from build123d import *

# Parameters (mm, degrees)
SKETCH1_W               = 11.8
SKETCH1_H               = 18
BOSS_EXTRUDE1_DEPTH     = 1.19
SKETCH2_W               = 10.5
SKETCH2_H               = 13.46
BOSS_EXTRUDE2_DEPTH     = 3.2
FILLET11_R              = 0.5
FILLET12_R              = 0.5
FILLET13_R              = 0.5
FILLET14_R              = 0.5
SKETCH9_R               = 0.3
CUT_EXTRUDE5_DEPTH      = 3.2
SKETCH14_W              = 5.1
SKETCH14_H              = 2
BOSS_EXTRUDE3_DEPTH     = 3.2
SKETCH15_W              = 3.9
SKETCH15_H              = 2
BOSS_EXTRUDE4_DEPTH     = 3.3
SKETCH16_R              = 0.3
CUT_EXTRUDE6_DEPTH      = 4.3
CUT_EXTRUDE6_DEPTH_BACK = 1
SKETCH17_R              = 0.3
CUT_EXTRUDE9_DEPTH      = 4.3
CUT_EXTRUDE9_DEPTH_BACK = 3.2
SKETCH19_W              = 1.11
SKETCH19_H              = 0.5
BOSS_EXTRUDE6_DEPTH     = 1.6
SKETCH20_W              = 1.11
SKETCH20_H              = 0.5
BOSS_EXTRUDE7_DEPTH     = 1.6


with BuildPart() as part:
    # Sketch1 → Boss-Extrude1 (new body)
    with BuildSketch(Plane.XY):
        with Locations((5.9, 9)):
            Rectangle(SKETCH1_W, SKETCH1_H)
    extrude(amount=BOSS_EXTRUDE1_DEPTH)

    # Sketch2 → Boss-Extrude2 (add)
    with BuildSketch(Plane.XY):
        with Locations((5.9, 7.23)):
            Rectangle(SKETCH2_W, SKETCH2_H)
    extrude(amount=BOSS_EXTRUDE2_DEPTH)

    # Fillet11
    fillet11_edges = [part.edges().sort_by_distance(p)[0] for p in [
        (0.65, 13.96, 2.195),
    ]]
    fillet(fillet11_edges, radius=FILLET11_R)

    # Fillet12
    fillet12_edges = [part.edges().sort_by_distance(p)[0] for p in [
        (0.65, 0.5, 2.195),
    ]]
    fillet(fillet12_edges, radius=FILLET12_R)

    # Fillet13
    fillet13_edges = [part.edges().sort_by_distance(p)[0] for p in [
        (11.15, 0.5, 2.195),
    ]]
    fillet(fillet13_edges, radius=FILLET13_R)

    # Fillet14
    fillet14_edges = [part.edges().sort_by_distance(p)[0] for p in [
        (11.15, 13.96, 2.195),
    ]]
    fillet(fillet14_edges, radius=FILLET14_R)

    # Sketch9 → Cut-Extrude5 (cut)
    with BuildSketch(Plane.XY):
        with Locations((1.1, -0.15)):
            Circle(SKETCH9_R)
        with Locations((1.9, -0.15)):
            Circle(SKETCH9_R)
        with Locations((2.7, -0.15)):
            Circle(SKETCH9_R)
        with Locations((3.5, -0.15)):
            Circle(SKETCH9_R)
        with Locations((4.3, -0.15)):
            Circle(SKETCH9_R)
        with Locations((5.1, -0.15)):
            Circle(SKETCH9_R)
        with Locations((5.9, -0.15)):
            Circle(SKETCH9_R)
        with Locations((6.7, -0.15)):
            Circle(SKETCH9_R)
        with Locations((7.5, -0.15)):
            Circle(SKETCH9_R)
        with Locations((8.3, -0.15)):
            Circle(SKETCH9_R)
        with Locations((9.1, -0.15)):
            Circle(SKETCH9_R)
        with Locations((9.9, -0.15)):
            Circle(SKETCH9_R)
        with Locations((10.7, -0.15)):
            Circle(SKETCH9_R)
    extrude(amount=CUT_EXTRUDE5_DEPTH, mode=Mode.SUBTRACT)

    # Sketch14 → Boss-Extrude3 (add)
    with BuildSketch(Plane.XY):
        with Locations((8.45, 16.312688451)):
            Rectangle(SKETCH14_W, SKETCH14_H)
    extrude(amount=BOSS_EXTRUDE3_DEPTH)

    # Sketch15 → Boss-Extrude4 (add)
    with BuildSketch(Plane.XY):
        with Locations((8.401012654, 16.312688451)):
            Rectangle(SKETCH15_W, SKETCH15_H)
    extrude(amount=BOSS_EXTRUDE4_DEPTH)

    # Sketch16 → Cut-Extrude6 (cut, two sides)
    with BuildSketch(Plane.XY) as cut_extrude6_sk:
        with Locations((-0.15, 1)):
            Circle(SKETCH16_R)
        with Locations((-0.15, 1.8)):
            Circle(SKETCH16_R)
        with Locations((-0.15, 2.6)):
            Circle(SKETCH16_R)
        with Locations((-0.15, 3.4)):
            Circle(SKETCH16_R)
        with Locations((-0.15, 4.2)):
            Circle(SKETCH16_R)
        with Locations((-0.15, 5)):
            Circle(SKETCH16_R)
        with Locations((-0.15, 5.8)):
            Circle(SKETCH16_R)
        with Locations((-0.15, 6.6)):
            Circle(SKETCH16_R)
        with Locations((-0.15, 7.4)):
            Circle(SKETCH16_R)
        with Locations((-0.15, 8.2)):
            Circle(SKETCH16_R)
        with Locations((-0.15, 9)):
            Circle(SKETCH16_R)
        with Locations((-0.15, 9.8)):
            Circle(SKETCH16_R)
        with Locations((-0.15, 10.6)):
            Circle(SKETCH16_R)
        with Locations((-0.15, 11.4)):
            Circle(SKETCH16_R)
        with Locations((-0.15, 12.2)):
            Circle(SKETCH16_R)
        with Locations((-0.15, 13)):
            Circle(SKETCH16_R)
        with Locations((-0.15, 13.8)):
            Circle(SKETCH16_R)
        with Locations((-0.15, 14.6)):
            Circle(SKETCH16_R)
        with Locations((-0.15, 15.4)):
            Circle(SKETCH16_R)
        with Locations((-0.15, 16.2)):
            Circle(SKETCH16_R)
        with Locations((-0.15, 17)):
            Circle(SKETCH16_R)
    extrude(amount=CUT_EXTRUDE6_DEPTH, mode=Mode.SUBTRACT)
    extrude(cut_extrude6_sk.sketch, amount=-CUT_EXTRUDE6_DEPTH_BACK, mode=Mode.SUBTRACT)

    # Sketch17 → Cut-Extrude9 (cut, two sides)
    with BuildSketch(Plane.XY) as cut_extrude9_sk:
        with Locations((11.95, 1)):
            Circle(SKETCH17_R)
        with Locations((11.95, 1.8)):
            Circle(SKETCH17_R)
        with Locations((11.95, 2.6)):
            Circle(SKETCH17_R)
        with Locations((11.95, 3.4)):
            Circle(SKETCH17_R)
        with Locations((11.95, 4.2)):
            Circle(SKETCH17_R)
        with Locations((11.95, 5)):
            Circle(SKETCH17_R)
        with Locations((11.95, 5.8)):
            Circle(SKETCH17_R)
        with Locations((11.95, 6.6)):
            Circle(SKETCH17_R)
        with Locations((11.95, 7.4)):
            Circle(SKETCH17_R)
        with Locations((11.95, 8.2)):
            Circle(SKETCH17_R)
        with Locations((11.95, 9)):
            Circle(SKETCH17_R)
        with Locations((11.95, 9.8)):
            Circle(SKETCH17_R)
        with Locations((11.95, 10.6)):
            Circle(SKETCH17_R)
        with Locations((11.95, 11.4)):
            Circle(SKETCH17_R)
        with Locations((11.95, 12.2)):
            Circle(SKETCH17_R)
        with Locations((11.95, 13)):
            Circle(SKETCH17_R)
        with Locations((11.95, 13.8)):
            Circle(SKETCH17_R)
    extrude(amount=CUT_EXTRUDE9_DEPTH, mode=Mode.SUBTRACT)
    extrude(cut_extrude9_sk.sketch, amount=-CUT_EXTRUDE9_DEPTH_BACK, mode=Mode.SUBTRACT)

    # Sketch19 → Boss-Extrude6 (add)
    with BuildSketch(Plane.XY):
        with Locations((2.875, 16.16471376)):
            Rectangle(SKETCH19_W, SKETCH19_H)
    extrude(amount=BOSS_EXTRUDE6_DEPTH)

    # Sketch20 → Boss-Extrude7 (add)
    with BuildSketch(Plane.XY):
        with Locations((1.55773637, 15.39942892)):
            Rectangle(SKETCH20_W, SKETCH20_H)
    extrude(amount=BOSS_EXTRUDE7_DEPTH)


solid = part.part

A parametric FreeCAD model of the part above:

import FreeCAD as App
import Part
import Sketcher
from FreeCAD import Vector


def edges_at(feature, points):
    """Names of the edges that pass closest to the given points."""
    edges = feature.Shape.Edges
    near = lambda p: min(range(len(edges)), key=lambda i: edges[i].distToShape(Part.Vertex(*p))[0])
    return sorted({f"Edge{near(p) + 1}" for p in points})

doc = App.newDocument("Part")
body = doc.addObject("PartDesign::Body", "Body")

# Sketch on XY plane
sketch1 = doc.addObject("Sketcher::SketchObject", "Sketch")
body.addObject(sketch1)
sketch1.AttachmentSupport = (doc.XY_Plane, [""])
sketch1.MapMode = "FlatFace"
sketch1.addGeometry([
    Part.LineSegment(Vector(0, 18, 0), Vector(0, 0, 0)),
    Part.LineSegment(Vector(0, 0, 0), Vector(11.8, 0, 0)),
    Part.LineSegment(Vector(11.8, 0, 0), Vector(11.8, 18, 0)),
    Part.LineSegment(Vector(11.8, 18, 0), Vector(0, 18, 0)),
], False)
sketch1.addConstraint([
    Sketcher.Constraint("Coincident", 0, 2, 1, 1),
    Sketcher.Constraint("Coincident", 1, 2, 2, 1),
    Sketcher.Constraint("Coincident", 2, 2, 3, 1),
    Sketcher.Constraint("Coincident", 3, 2, 0, 1),
    Sketcher.Constraint("Vertical", 0),
    Sketcher.Constraint("Horizontal", 1),
    Sketcher.Constraint("Vertical", 2),
    Sketcher.Constraint("Horizontal", 3),
    Sketcher.Constraint("Coincident", 0, 2, -1, 1),
    Sketcher.Constraint("DistanceY", 0, 2, 0, 1, 18.0),
    Sketcher.Constraint("DistanceX", 1, 1, 1, 2, 11.8),
])
pad1 = doc.addObject("PartDesign::Pad", "Pad")
body.addObject(pad1)
pad1.Profile = sketch1
pad1.Length = 1.19

# Sketch on XY plane
sketch2 = doc.addObject("Sketcher::SketchObject", "Sketch001")
body.addObject(sketch2)
sketch2.AttachmentSupport = (doc.XY_Plane, [""])
sketch2.MapMode = "FlatFace"
sketch2.addGeometry([
    Part.LineSegment(Vector(0.65, 13.96, 0), Vector(0.65, 0.5, 0)),
    Part.LineSegment(Vector(0.65, 0.5, 0), Vector(11.15, 0.5, 0)),
    Part.LineSegment(Vector(11.15, 0.5, 0), Vector(11.15, 13.96, 0)),
    Part.LineSegment(Vector(11.15, 13.96, 0), Vector(0.65, 13.96, 0)),
], False)
sketch2.addConstraint([
    Sketcher.Constraint("Coincident", 0, 2, 1, 1),
    Sketcher.Constraint("Coincident", 1, 2, 2, 1),
    Sketcher.Constraint("Coincident", 2, 2, 3, 1),
    Sketcher.Constraint("Coincident", 3, 2, 0, 1),
    Sketcher.Constraint("Vertical", 0),
    Sketcher.Constraint("Horizontal", 1),
    Sketcher.Constraint("Vertical", 2),
    Sketcher.Constraint("Horizontal", 3),
    Sketcher.Constraint("DistanceX", 1, 1, 1, 2, 10.5),
    Sketcher.Constraint("DistanceY", 0, 2, 0, 1, 13.46),
    Sketcher.Constraint("DistanceY", -1, 1, 0, 2, 0.5),
    Sketcher.Constraint("DistanceX", -1, 1, 0, 2, 0.65),
])
pad2 = doc.addObject("PartDesign::Pad", "Pad001")
body.addObject(pad2)
pad2.Profile = sketch2
pad2.Length = 3.2
doc.recompute()

fillet = doc.addObject("PartDesign::Fillet", "Fillet")
body.addObject(fillet)
fillet.Base = (pad2, edges_at(pad2, [(0.65, 13.96, 2.195)]))
fillet.Radius = 0.5
doc.recompute()

fillet2 = doc.addObject("PartDesign::Fillet", "Fillet001")
body.addObject(fillet2)
fillet2.Base = (fillet, edges_at(fillet, [(0.65, 0.5, 2.195)]))
fillet2.Radius = 0.5
doc.recompute()

fillet3 = doc.addObject("PartDesign::Fillet", "Fillet002")
body.addObject(fillet3)
fillet3.Base = (fillet2, edges_at(fillet2, [(11.15, 0.5, 2.195)]))
fillet3.Radius = 0.5
doc.recompute()

fillet4 = doc.addObject("PartDesign::Fillet", "Fillet003")
body.addObject(fillet4)
fillet4.Base = (fillet3, edges_at(fillet3, [(11.15, 13.96, 2.195)]))
fillet4.Radius = 0.5

# Sketch on XY plane
sketch3 = doc.addObject("Sketcher::SketchObject", "Sketch002")
body.addObject(sketch3)
sketch3.AttachmentSupport = (doc.XY_Plane, [""])
sketch3.MapMode = "FlatFace"
sketch3.addGeometry([
    Part.Circle(Vector(1.1, -0.15, 0), Vector(0, 0, 1), 0.3),  # 0
    Part.Circle(Vector(1.9, -0.15, 0), Vector(0, 0, 1), 0.3),  # 1
    Part.Circle(Vector(2.7, -0.15, 0), Vector(0, 0, 1), 0.3),  # 2
    Part.Circle(Vector(3.5, -0.15, 0), Vector(0, 0, 1), 0.3),  # 3
    Part.Circle(Vector(4.3, -0.15, 0), Vector(0, 0, 1), 0.3),  # 4
    Part.Circle(Vector(5.1, -0.15, 0), Vector(0, 0, 1), 0.3),  # 5
    Part.Circle(Vector(5.9, -0.15, 0), Vector(0, 0, 1), 0.3),  # 6
    Part.Circle(Vector(6.7, -0.15, 0), Vector(0, 0, 1), 0.3),  # 7
    Part.Circle(Vector(7.5, -0.15, 0), Vector(0, 0, 1), 0.3),  # 8
    Part.Circle(Vector(8.3, -0.15, 0), Vector(0, 0, 1), 0.3),  # 9
    Part.Circle(Vector(9.1, -0.15, 0), Vector(0, 0, 1), 0.3),  # 10
    Part.Circle(Vector(9.9, -0.15, 0), Vector(0, 0, 1), 0.3),  # 11
    Part.Circle(Vector(10.7, -0.15, 0), Vector(0, 0, 1), 0.3),  # 12
], False)
sketch3.addConstraint([
    Sketcher.Constraint("Equal", 0, 1),
    Sketcher.Constraint("Equal", 1, 2),
    Sketcher.Constraint("Equal", 2, 3),
    Sketcher.Constraint("Equal", 3, 4),
    Sketcher.Constraint("Equal", 4, 5),
    Sketcher.Constraint("Equal", 5, 6),
    Sketcher.Constraint("Equal", 6, 7),
    Sketcher.Constraint("Equal", 7, 8),
    Sketcher.Constraint("Equal", 8, 9),
    Sketcher.Constraint("Equal", 9, 10),
    Sketcher.Constraint("Equal", 10, 11),
    Sketcher.Constraint("Equal", 11, 12),
    Sketcher.Constraint("Horizontal", 0, 3, 1, 3),
    Sketcher.Constraint("Horizontal", 1, 3, 2, 3),
    Sketcher.Constraint("Horizontal", 2, 3, 3, 3),
    Sketcher.Constraint("Horizontal", 3, 3, 4, 3),
    Sketcher.Constraint("Horizontal", 4, 3, 5, 3),
    Sketcher.Constraint("Horizontal", 5, 3, 6, 3),
    Sketcher.Constraint("Horizontal", 6, 3, 7, 3),
    Sketcher.Constraint("Horizontal", 7, 3, 8, 3),
    Sketcher.Constraint("Horizontal", 8, 3, 9, 3),
    Sketcher.Constraint("Horizontal", 9, 3, 10, 3),
    Sketcher.Constraint("Horizontal", 10, 3, 11, 3),
    Sketcher.Constraint("Horizontal", 11, 3, 12, 3),
    Sketcher.Constraint("Diameter", 0, 0.6),
    Sketcher.Constraint("DistanceX", 0, 3, 5, 3, 4.0),
    Sketcher.Constraint("DistanceX", 1, 3, 6, 3, 4.0),
    Sketcher.Constraint("DistanceX", 2, 3, 7, 3, 4.0),
    Sketcher.Constraint("DistanceX", 3, 3, 8, 3, 4.0),
    Sketcher.Constraint("DistanceX", 4, 3, 9, 3, 4.0),
    Sketcher.Constraint("DistanceX", 5, 3, 10, 3, 4.0),
    Sketcher.Constraint("DistanceX", 6, 3, 11, 3, 4.0),
    Sketcher.Constraint("DistanceX", 7, 3, 12, 3, 4.0),
    Sketcher.Constraint("DistanceX", -1, 1, 0, 3, 1.1),
    Sketcher.Constraint("DistanceX", -1, 1, 1, 3, 1.9),
    Sketcher.Constraint("DistanceX", -1, 1, 2, 3, 2.7),
    Sketcher.Constraint("DistanceX", -1, 1, 3, 3, 3.5),
    Sketcher.Constraint("DistanceX", -1, 1, 4, 3, 4.3),
    Sketcher.Constraint("DistanceY", 0, 3, -1, 1, 0.15),
])
pocket1 = doc.addObject("PartDesign::Pocket", "Pocket")
body.addObject(pocket1)
pocket1.Profile = sketch3
pocket1.Length = 3.2
pocket1.Reversed = True

# Sketch on XY plane
sketch4 = doc.addObject("Sketcher::SketchObject", "Sketch003")
body.addObject(sketch4)
sketch4.AttachmentSupport = (doc.XY_Plane, [""])
sketch4.MapMode = "FlatFace"
sketch4.addGeometry([
    Part.LineSegment(Vector(5.9, 17.312688, 0), Vector(5.9, 15.312688, 0)),
    Part.LineSegment(Vector(5.9, 15.312688, 0), Vector(11, 15.312688, 0)),
    Part.LineSegment(Vector(11, 15.312688, 0), Vector(11, 17.312688, 0)),
    Part.LineSegment(Vector(11, 17.312688, 0), Vector(5.9, 17.312688, 0)),
], False)
sketch4.addConstraint([
    Sketcher.Constraint("Coincident", 0, 2, 1, 1),
    Sketcher.Constraint("Coincident", 1, 2, 2, 1),
    Sketcher.Constraint("Coincident", 2, 2, 3, 1),
    Sketcher.Constraint("Coincident", 3, 2, 0, 1),
    Sketcher.Constraint("Vertical", 0),
    Sketcher.Constraint("Horizontal", 1),
    Sketcher.Constraint("Vertical", 2),
    Sketcher.Constraint("Horizontal", 3),
    Sketcher.Constraint("DistanceY", 0, 2, 0, 1, 2.0),
    Sketcher.Constraint("DistanceX", 1, 1, 1, 2, 5.1),
    Sketcher.Constraint("DistanceX", -1, 1, 1, 2, 11.0),
    Sketcher.Constraint("DistanceY", -1, 1, 0, 2, 15.312688),
])
pad3 = doc.addObject("PartDesign::Pad", "Pad002")
body.addObject(pad3)
pad3.Profile = sketch4
pad3.Length = 3.2

# Sketch on XY plane
sketch5 = doc.addObject("Sketcher::SketchObject", "Sketch004")
body.addObject(sketch5)
sketch5.AttachmentSupport = (doc.XY_Plane, [""])
sketch5.MapMode = "FlatFace"
sketch5.addGeometry([
    Part.LineSegment(Vector(6.451013, 17.312688, 0), Vector(6.451013, 15.312688, 0)),
    Part.LineSegment(Vector(6.451013, 15.312688, 0), Vector(10.351013, 15.312688, 0)),
    Part.LineSegment(Vector(10.351013, 15.312688, 0), Vector(10.351013, 17.312688, 0)),
    Part.LineSegment(Vector(10.351013, 17.312688, 0), Vector(6.451013, 17.312688, 0)),
], False)
sketch5.addConstraint([
    Sketcher.Constraint("Coincident", 0, 2, 1, 1),
    Sketcher.Constraint("Coincident", 1, 2, 2, 1),
    Sketcher.Constraint("Coincident", 2, 2, 3, 1),
    Sketcher.Constraint("Coincident", 3, 2, 0, 1),
    Sketcher.Constraint("Vertical", 0),
    Sketcher.Constraint("Horizontal", 1),
    Sketcher.Constraint("Vertical", 2),
    Sketcher.Constraint("Horizontal", 3),
    Sketcher.Constraint("DistanceY", 0, 2, 0, 1, 2.0),
    Sketcher.Constraint("DistanceX", 1, 1, 1, 2, 3.9),
    Sketcher.Constraint("DistanceY", -1, 1, 0, 2, 15.312688),
    Sketcher.Constraint("DistanceX", -1, 1, 0, 2, 6.451013),
])
pad4 = doc.addObject("PartDesign::Pad", "Pad003")
body.addObject(pad4)
pad4.Profile = sketch5
pad4.Length = 3.3

# Sketch on XY plane
sketch6 = doc.addObject("Sketcher::SketchObject", "Sketch005")
body.addObject(sketch6)
sketch6.AttachmentSupport = (doc.XY_Plane, [""])
sketch6.MapMode = "FlatFace"
sketch6.addGeometry([
    Part.Circle(Vector(-0.15, 1, 0), Vector(0, 0, 1), 0.3),  # 0
    Part.Circle(Vector(-0.15, 1.8, 0), Vector(0, 0, 1), 0.3),  # 1
    Part.Circle(Vector(-0.15, 2.6, 0), Vector(0, 0, 1), 0.3),  # 2
    Part.Circle(Vector(-0.15, 3.4, 0), Vector(0, 0, 1), 0.3),  # 3
    Part.Circle(Vector(-0.15, 4.2, 0), Vector(0, 0, 1), 0.3),  # 4
    Part.Circle(Vector(-0.15, 5, 0), Vector(0, 0, 1), 0.3),  # 5
    Part.Circle(Vector(-0.15, 5.8, 0), Vector(0, 0, 1), 0.3),  # 6
    Part.Circle(Vector(-0.15, 6.6, 0), Vector(0, 0, 1), 0.3),  # 7
    Part.Circle(Vector(-0.15, 7.4, 0), Vector(0, 0, 1), 0.3),  # 8
    Part.Circle(Vector(-0.15, 8.2, 0), Vector(0, 0, 1), 0.3),  # 9
    Part.Circle(Vector(-0.15, 9, 0), Vector(0, 0, 1), 0.3),  # 10
    Part.Circle(Vector(-0.15, 9.8, 0), Vector(0, 0, 1), 0.3),  # 11
    Part.Circle(Vector(-0.15, 10.6, 0), Vector(0, 0, 1), 0.3),  # 12
    Part.Circle(Vector(-0.15, 11.4, 0), Vector(0, 0, 1), 0.3),  # 13
    Part.Circle(Vector(-0.15, 12.2, 0), Vector(0, 0, 1), 0.3),  # 14
    Part.Circle(Vector(-0.15, 13, 0), Vector(0, 0, 1), 0.3),  # 15
    Part.Circle(Vector(-0.15, 13.8, 0), Vector(0, 0, 1), 0.3),  # 16
    Part.Circle(Vector(-0.15, 14.6, 0), Vector(0, 0, 1), 0.3),  # 17
    Part.Circle(Vector(-0.15, 15.4, 0), Vector(0, 0, 1), 0.3),  # 18
    Part.Circle(Vector(-0.15, 16.2, 0), Vector(0, 0, 1), 0.3),  # 19
    Part.Circle(Vector(-0.15, 17, 0), Vector(0, 0, 1), 0.3),  # 20
], False)
sketch6.addConstraint([
    Sketcher.Constraint("Equal", 0, 1),
    Sketcher.Constraint("Equal", 1, 2),
    Sketcher.Constraint("Equal", 2, 3),
    Sketcher.Constraint("Equal", 3, 4),
    Sketcher.Constraint("Equal", 4, 5),
    Sketcher.Constraint("Equal", 5, 6),
    Sketcher.Constraint("Equal", 6, 7),
    Sketcher.Constraint("Equal", 7, 8),
    Sketcher.Constraint("Equal", 8, 9),
    Sketcher.Constraint("Equal", 9, 10),
    Sketcher.Constraint("Equal", 10, 11),
    Sketcher.Constraint("Equal", 11, 12),
    Sketcher.Constraint("Equal", 12, 13),
    Sketcher.Constraint("Equal", 13, 14),
    Sketcher.Constraint("Equal", 14, 15),
    Sketcher.Constraint("Equal", 15, 16),
    Sketcher.Constraint("Equal", 16, 17),
    Sketcher.Constraint("Equal", 17, 18),
    Sketcher.Constraint("Equal", 18, 19),
    Sketcher.Constraint("Equal", 19, 20),
    Sketcher.Constraint("Vertical", 0, 3, 1, 3),
    Sketcher.Constraint("Vertical", 1, 3, 2, 3),
    Sketcher.Constraint("Vertical", 2, 3, 3, 3),
    Sketcher.Constraint("Vertical", 3, 3, 4, 3),
    Sketcher.Constraint("Vertical", 4, 3, 5, 3),
    Sketcher.Constraint("Vertical", 5, 3, 6, 3),
    Sketcher.Constraint("Vertical", 6, 3, 7, 3),
    Sketcher.Constraint("Vertical", 7, 3, 8, 3),
    Sketcher.Constraint("Vertical", 8, 3, 9, 3),
    Sketcher.Constraint("Vertical", 9, 3, 10, 3),
    Sketcher.Constraint("Vertical", 10, 3, 11, 3),
    Sketcher.Constraint("Vertical", 11, 3, 12, 3),
    Sketcher.Constraint("Vertical", 12, 3, 13, 3),
    Sketcher.Constraint("Vertical", 13, 3, 14, 3),
    Sketcher.Constraint("Vertical", 14, 3, 15, 3),
    Sketcher.Constraint("Vertical", 15, 3, 16, 3),
    Sketcher.Constraint("Vertical", 16, 3, 17, 3),
    Sketcher.Constraint("Vertical", 17, 3, 18, 3),
    Sketcher.Constraint("Vertical", 18, 3, 19, 3),
    Sketcher.Constraint("Vertical", 19, 3, 20, 3),
    Sketcher.Constraint("Diameter", 0, 0.6),
    Sketcher.Constraint("DistanceY", -1, 1, 0, 3, 1.0),
    Sketcher.Constraint("DistanceY", -1, 1, 5, 3, 5.0),
    Sketcher.Constraint("DistanceY", -1, 1, 10, 3, 9.0),
    Sketcher.Constraint("DistanceY", -1, 1, 15, 3, 13.0),
    Sketcher.Constraint("DistanceY", -1, 1, 20, 3, 17.0),
    Sketcher.Constraint("DistanceY", 1, 3, 6, 3, 4.0),
    Sketcher.Constraint("DistanceY", 2, 3, 7, 3, 4.0),
    Sketcher.Constraint("DistanceY", 3, 3, 8, 3, 4.0),
    Sketcher.Constraint("DistanceY", 4, 3, 9, 3, 4.0),
    Sketcher.Constraint("DistanceY", 6, 3, 11, 3, 4.0),
    Sketcher.Constraint("DistanceY", 7, 3, 12, 3, 4.0),
    Sketcher.Constraint("DistanceY", 8, 3, 13, 3, 4.0),
    Sketcher.Constraint("DistanceY", 9, 3, 14, 3, 4.0),
    Sketcher.Constraint("DistanceY", 11, 3, 16, 3, 4.0),
    Sketcher.Constraint("DistanceY", 12, 3, 17, 3, 4.0),
    Sketcher.Constraint("DistanceY", 13, 3, 18, 3, 4.0),
    Sketcher.Constraint("DistanceY", 14, 3, 19, 3, 4.0),
    Sketcher.Constraint("DistanceY", -1, 1, 1, 3, 1.8),
    Sketcher.Constraint("DistanceY", -1, 1, 2, 3, 2.6),
    Sketcher.Constraint("DistanceY", -1, 1, 3, 3, 3.4),
    Sketcher.Constraint("DistanceY", -1, 1, 4, 3, 4.2),
    Sketcher.Constraint("DistanceX", 0, 3, -1, 1, 0.15),
])
pocket2 = doc.addObject("PartDesign::Pocket", "Pocket001")
body.addObject(pocket2)
pocket2.Profile = sketch6
pocket2.Type = "ThroughAll"
pocket2.Midplane = True

# Sketch on XY plane
sketch7 = doc.addObject("Sketcher::SketchObject", "Sketch006")
body.addObject(sketch7)
sketch7.AttachmentSupport = (doc.XY_Plane, [""])
sketch7.MapMode = "FlatFace"
sketch7.addGeometry([
    Part.Circle(Vector(11.95, 1, 0), Vector(0, 0, 1), 0.3),  # 0
    Part.Circle(Vector(11.95, 1.8, 0), Vector(0, 0, 1), 0.3),  # 1
    Part.Circle(Vector(11.95, 2.6, 0), Vector(0, 0, 1), 0.3),  # 2
    Part.Circle(Vector(11.95, 3.4, 0), Vector(0, 0, 1), 0.3),  # 3
    Part.Circle(Vector(11.95, 4.2, 0), Vector(0, 0, 1), 0.3),  # 4
    Part.Circle(Vector(11.95, 5, 0), Vector(0, 0, 1), 0.3),  # 5
    Part.Circle(Vector(11.95, 5.8, 0), Vector(0, 0, 1), 0.3),  # 6
    Part.Circle(Vector(11.95, 6.6, 0), Vector(0, 0, 1), 0.3),  # 7
    Part.Circle(Vector(11.95, 7.4, 0), Vector(0, 0, 1), 0.3),  # 8
    Part.Circle(Vector(11.95, 8.2, 0), Vector(0, 0, 1), 0.3),  # 9
    Part.Circle(Vector(11.95, 9, 0), Vector(0, 0, 1), 0.3),  # 10
    Part.Circle(Vector(11.95, 9.8, 0), Vector(0, 0, 1), 0.3),  # 11
    Part.Circle(Vector(11.95, 10.6, 0), Vector(0, 0, 1), 0.3),  # 12
    Part.Circle(Vector(11.95, 11.4, 0), Vector(0, 0, 1), 0.3),  # 13
    Part.Circle(Vector(11.95, 12.2, 0), Vector(0, 0, 1), 0.3),  # 14
    Part.Circle(Vector(11.95, 13, 0), Vector(0, 0, 1), 0.3),  # 15
    Part.Circle(Vector(11.95, 13.8, 0), Vector(0, 0, 1), 0.3),  # 16
], False)
sketch7.addConstraint([
    Sketcher.Constraint("Equal", 0, 1),
    Sketcher.Constraint("Equal", 1, 2),
    Sketcher.Constraint("Equal", 2, 3),
    Sketcher.Constraint("Equal", 3, 4),
    Sketcher.Constraint("Equal", 4, 5),
    Sketcher.Constraint("Equal", 5, 6),
    Sketcher.Constraint("Equal", 6, 7),
    Sketcher.Constraint("Equal", 7, 8),
    Sketcher.Constraint("Equal", 8, 9),
    Sketcher.Constraint("Equal", 9, 10),
    Sketcher.Constraint("Equal", 10, 11),
    Sketcher.Constraint("Equal", 11, 12),
    Sketcher.Constraint("Equal", 12, 13),
    Sketcher.Constraint("Equal", 13, 14),
    Sketcher.Constraint("Equal", 14, 15),
    Sketcher.Constraint("Equal", 15, 16),
    Sketcher.Constraint("Vertical", 0, 3, 1, 3),
    Sketcher.Constraint("Vertical", 1, 3, 2, 3),
    Sketcher.Constraint("Vertical", 2, 3, 3, 3),
    Sketcher.Constraint("Vertical", 3, 3, 4, 3),
    Sketcher.Constraint("Vertical", 4, 3, 5, 3),
    Sketcher.Constraint("Vertical", 5, 3, 6, 3),
    Sketcher.Constraint("Vertical", 6, 3, 7, 3),
    Sketcher.Constraint("Vertical", 7, 3, 8, 3),
    Sketcher.Constraint("Vertical", 8, 3, 9, 3),
    Sketcher.Constraint("Vertical", 9, 3, 10, 3),
    Sketcher.Constraint("Vertical", 10, 3, 11, 3),
    Sketcher.Constraint("Vertical", 11, 3, 12, 3),
    Sketcher.Constraint("Vertical", 12, 3, 13, 3),
    Sketcher.Constraint("Vertical", 13, 3, 14, 3),
    Sketcher.Constraint("Vertical", 14, 3, 15, 3),
    Sketcher.Constraint("Vertical", 15, 3, 16, 3),
    Sketcher.Constraint("Diameter", 0, 0.6),
    Sketcher.Constraint("DistanceY", -1, 1, 0, 3, 1.0),
    Sketcher.Constraint("DistanceY", -1, 1, 5, 3, 5.0),
    Sketcher.Constraint("DistanceY", -1, 1, 10, 3, 9.0),
    Sketcher.Constraint("DistanceY", -1, 1, 15, 3, 13.0),
    Sketcher.Constraint("DistanceY", 1, 3, 6, 3, 4.0),
    Sketcher.Constraint("DistanceY", 2, 3, 7, 3, 4.0),
    Sketcher.Constraint("DistanceY", 3, 3, 8, 3, 4.0),
    Sketcher.Constraint("DistanceY", 4, 3, 9, 3, 4.0),
    Sketcher.Constraint("DistanceY", 6, 3, 11, 3, 4.0),
    Sketcher.Constraint("DistanceY", 7, 3, 12, 3, 4.0),
    Sketcher.Constraint("DistanceY", 8, 3, 13, 3, 4.0),
    Sketcher.Constraint("DistanceY", 9, 3, 14, 3, 4.0),
    Sketcher.Constraint("DistanceY", 11, 3, 16, 3, 4.0),
    Sketcher.Constraint("DistanceY", -1, 1, 1, 3, 1.8),
    Sketcher.Constraint("DistanceY", -1, 1, 2, 3, 2.6),
    Sketcher.Constraint("DistanceY", -1, 1, 3, 3, 3.4),
    Sketcher.Constraint("DistanceY", -1, 1, 4, 3, 4.2),
    Sketcher.Constraint("DistanceX", -1, 1, 0, 3, 11.95),
])
pocket3 = doc.addObject("PartDesign::Pocket", "Pocket002")
body.addObject(pocket3)
pocket3.Profile = sketch7
pocket3.Type = "ThroughAll"
pocket3.Midplane = True

# Sketch on XY plane
sketch8 = doc.addObject("Sketcher::SketchObject", "Sketch007")
body.addObject(sketch8)
sketch8.AttachmentSupport = (doc.XY_Plane, [""])
sketch8.MapMode = "FlatFace"
sketch8.addGeometry([
    Part.LineSegment(Vector(2.32, 16.414714, 0), Vector(2.32, 15.914714, 0)),
    Part.LineSegment(Vector(2.32, 15.914714, 0), Vector(3.43, 15.914714, 0)),
    Part.LineSegment(Vector(3.43, 15.914714, 0), Vector(3.43, 16.414714, 0)),
    Part.LineSegment(Vector(3.43, 16.414714, 0), Vector(2.32, 16.414714, 0)),
], False)
sketch8.addConstraint([
    Sketcher.Constraint("Coincident", 0, 2, 1, 1),
    Sketcher.Constraint("Coincident", 1, 2, 2, 1),
    Sketcher.Constraint("Coincident", 2, 2, 3, 1),
    Sketcher.Constraint("Coincident", 3, 2, 0, 1),
    Sketcher.Constraint("Vertical", 0),
    Sketcher.Constraint("Horizontal", 1),
    Sketcher.Constraint("Vertical", 2),
    Sketcher.Constraint("Horizontal", 3),
    Sketcher.Constraint("DistanceY", 0, 2, 0, 1, 0.5),
    Sketcher.Constraint("DistanceX", 1, 1, 1, 2, 1.11),
    Sketcher.Constraint("DistanceX", -1, 1, 0, 2, 2.32),
    Sketcher.Constraint("DistanceY", -1, 1, 0, 2, 15.914714),
])
pad5 = doc.addObject("PartDesign::Pad", "Pad004")
body.addObject(pad5)
pad5.Profile = sketch8
pad5.Length = 1.6

# Sketch on XY plane
sketch9 = doc.addObject("Sketcher::SketchObject", "Sketch008")
body.addObject(sketch9)
sketch9.AttachmentSupport = (doc.XY_Plane, [""])
sketch9.MapMode = "FlatFace"
sketch9.addGeometry([
    Part.LineSegment(Vector(1.002736, 15.649429, 0), Vector(1.002736, 15.149429, 0)),
    Part.LineSegment(Vector(1.002736, 15.149429, 0), Vector(2.112736, 15.149429, 0)),
    Part.LineSegment(Vector(2.112736, 15.149429, 0), Vector(2.112736, 15.649429, 0)),
    Part.LineSegment(Vector(2.112736, 15.649429, 0), Vector(1.002736, 15.649429, 0)),
], False)
sketch9.addConstraint([
    Sketcher.Constraint("Coincident", 0, 2, 1, 1),
    Sketcher.Constraint("Coincident", 1, 2, 2, 1),
    Sketcher.Constraint("Coincident", 2, 2, 3, 1),
    Sketcher.Constraint("Coincident", 3, 2, 0, 1),
    Sketcher.Constraint("Vertical", 0),
    Sketcher.Constraint("Horizontal", 1),
    Sketcher.Constraint("Vertical", 2),
    Sketcher.Constraint("Horizontal", 3),
    Sketcher.Constraint("DistanceY", 0, 2, 0, 1, 0.5),
    Sketcher.Constraint("DistanceX", 1, 1, 1, 2, 1.11),
    Sketcher.Constraint("DistanceY", -1, 1, 0, 2, 15.149429),
    Sketcher.Constraint("DistanceX", -1, 1, 0, 2, 1.002736),
])
pad6 = doc.addObject("PartDesign::Pad", "Pad005")
body.addObject(pad6)
pad6.Profile = sketch9
pad6.Length = 1.6

doc.recompute()
